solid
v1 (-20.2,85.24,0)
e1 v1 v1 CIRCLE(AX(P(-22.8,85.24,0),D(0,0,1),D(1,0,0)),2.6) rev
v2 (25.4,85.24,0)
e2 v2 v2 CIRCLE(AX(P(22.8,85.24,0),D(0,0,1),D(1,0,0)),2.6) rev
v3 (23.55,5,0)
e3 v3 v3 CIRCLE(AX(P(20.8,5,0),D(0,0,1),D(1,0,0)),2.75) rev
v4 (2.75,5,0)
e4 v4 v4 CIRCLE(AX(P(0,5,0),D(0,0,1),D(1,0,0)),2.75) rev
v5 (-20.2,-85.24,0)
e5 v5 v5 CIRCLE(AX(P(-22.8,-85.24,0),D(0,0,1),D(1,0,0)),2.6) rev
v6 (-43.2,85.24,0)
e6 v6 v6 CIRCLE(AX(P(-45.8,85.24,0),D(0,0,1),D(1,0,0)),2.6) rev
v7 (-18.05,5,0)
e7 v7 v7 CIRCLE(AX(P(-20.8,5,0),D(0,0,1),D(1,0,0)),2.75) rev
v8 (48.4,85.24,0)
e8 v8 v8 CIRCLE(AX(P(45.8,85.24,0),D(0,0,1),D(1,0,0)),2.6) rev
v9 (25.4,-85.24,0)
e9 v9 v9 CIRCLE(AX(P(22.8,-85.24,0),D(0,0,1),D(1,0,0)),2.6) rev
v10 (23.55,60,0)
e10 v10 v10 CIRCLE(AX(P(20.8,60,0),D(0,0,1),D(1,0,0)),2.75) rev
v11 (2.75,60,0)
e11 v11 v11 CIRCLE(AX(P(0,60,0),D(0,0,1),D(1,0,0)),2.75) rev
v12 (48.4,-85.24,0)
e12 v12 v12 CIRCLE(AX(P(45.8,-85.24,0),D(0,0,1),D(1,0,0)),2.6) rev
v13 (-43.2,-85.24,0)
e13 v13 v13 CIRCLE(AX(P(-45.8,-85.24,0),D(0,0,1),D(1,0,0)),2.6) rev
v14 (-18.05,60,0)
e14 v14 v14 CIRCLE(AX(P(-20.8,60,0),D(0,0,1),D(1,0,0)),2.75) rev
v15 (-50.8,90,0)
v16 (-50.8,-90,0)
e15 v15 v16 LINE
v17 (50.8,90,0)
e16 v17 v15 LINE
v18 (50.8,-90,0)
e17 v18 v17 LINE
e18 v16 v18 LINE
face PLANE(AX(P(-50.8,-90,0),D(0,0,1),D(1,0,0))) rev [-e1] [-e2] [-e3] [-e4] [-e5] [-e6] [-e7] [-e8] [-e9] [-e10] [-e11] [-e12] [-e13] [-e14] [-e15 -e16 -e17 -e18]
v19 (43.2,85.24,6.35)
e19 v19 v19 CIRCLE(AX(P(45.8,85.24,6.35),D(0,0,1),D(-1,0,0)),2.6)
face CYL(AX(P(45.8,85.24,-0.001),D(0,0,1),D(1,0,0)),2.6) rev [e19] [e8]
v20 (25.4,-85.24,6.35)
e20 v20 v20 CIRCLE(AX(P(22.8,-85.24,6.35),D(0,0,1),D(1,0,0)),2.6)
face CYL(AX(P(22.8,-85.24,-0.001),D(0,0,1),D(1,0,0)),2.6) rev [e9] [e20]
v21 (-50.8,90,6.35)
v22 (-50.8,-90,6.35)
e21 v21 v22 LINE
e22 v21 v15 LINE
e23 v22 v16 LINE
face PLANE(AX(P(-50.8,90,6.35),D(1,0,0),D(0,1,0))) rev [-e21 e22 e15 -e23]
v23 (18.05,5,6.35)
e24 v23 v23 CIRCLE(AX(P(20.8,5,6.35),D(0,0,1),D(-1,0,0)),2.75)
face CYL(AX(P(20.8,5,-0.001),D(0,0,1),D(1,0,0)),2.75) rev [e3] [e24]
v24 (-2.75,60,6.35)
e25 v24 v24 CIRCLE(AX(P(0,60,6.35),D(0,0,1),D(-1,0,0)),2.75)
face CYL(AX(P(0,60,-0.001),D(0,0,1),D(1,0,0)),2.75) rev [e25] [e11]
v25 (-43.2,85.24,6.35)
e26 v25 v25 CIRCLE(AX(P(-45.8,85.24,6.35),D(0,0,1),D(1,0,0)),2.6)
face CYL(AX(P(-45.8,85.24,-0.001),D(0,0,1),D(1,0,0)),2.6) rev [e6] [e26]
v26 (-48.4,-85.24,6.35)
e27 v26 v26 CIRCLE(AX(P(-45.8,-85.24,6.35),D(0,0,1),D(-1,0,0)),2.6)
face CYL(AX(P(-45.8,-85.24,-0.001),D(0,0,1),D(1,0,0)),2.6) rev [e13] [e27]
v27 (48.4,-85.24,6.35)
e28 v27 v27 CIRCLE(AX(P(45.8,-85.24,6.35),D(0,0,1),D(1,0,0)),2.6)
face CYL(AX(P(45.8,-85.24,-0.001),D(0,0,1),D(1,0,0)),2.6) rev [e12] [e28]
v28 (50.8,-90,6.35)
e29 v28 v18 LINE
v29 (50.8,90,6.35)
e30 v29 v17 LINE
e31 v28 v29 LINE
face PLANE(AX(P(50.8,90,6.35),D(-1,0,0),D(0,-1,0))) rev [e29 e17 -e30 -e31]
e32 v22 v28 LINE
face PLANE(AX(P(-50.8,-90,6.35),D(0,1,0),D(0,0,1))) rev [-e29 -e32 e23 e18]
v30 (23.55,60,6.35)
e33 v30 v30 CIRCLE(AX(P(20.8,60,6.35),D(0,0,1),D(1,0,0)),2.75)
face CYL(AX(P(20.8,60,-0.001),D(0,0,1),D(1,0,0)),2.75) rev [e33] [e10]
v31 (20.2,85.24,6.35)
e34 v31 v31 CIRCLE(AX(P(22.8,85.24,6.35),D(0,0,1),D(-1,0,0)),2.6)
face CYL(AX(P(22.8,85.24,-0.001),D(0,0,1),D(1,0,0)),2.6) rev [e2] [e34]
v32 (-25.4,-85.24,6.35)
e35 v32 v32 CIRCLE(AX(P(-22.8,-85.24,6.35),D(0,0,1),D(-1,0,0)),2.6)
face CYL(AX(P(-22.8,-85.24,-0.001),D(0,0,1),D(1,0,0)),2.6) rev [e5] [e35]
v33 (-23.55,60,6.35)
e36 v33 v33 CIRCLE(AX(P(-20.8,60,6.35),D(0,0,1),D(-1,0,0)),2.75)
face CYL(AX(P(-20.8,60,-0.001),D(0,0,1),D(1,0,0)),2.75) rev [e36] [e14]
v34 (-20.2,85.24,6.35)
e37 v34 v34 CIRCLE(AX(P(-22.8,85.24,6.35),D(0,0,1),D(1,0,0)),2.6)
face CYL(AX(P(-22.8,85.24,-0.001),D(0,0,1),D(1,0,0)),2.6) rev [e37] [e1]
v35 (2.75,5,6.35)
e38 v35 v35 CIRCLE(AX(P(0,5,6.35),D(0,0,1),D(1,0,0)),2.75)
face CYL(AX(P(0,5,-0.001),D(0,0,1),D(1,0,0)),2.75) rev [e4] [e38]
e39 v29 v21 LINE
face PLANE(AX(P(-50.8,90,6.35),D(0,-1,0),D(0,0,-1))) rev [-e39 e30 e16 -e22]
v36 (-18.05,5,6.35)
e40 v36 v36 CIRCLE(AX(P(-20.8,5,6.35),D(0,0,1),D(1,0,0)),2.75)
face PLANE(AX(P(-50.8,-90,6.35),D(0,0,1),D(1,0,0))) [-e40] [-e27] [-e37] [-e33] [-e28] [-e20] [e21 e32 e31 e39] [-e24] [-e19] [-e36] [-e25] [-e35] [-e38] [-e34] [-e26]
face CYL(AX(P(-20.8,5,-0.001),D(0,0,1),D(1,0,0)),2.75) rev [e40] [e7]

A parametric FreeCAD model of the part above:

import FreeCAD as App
import Part
import Sketcher
from FreeCAD import Vector
Q = App.Units.Quantity


def add_polygon(sketch, points):
    """Adds a closed chain of lines whose ends are joined by coincident constraints."""
    first, n = sketch.GeometryCount, len(points)
    for a, b in zip(points, points[1:] + points[:1]):
        sketch.addGeometry(Part.LineSegment(App.Vector(*a, 0), App.Vector(*b, 0)), False)
    for i in range(n):
        sketch.addConstraint(Sketcher.Constraint("Coincident", first + i, 2, first + (i + 1) % n, 1))

doc = App.newDocument("Part")
body = doc.addObject("PartDesign::Body", "Body")

# Sketch on XY plane
sketch1 = doc.addObject("Sketcher::SketchObject", "Sketch")
body.addObject(sketch1)
sketch1.AttachmentSupport = (doc.XY_Plane, [""])
sketch1.MapMode = "FlatFace"
add_polygon(sketch1, [(-50.8, 90), (-50.8, -90), (50.8, -90), (50.8, 90)])  # lines 0-3
sketch1.addConstraint([
    Sketcher.Constraint("Vertical", 0),
    Sketcher.Constraint("Horizontal", 1),
    Sketcher.Constraint("Vertical", 2),
    Sketcher.Constraint("Horizontal", 3),
    Sketcher.Constraint("Symmetric", 0, 2, 2, 2, -1, 1),
    Sketcher.Constraint("DistanceY", 0, 2, 0, 1, Q("180 mm")),
    Sketcher.Constraint("DistanceX", 1, 1, 1, 2, Q("101.6 mm")),
])
pad1 = doc.addObject("PartDesign::Pad", "Pad")
body.addObject(pad1)
pad1.Profile = sketch1
pad1.Length = 6.35

# Sketch on XY plane
sketch2 = doc.addObject("Sketcher::SketchObject", "Sketch001")
body.addObject(sketch2)
sketch2.AttachmentSupport = (doc.XY_Plane, [""])
sketch2.MapMode = "FlatFace"
sketch2.AttachmentOffset = App.Placement(Vector(0, 0, 6.35), App.Rotation())
sketch2.addGeometry(Part.Circle(Vector(-45.8, 85.24, 0), Vector(0, 0, 1), 2.6), False)
sketch2.addConstraint([
    Sketcher.Constraint("Diameter", 0, Q("5.2 mm")),
    Sketcher.Constraint("DistanceX", 0, 3, -1, 1, Q("45.8 mm")),
    Sketcher.Constraint("DistanceY", -1, 1, 0, 3, Q("85.24 mm")),
])
pocket1 = doc.addObject("PartDesign::Pocket", "Pocket")
body.addObject(pocket1)
pocket1.Profile = sketch2
pocket1.Type = "UpToFirst"

# Sketch on XY plane
sketch3 = doc.addObject("Sketcher::SketchObject", "Sketch002")
body.addObject(sketch3)
sketch3.AttachmentSupport = (doc.XY_Plane, [""])
sketch3.MapMode = "FlatFace"
sketch3.AttachmentOffset = App.Placement(Vector(0, 0, 6.35), App.Rotation())
sketch3.addGeometry(Part.Circle(Vector(-22.8, 85.24, 0), Vector(0, 0, 1), 2.6), False)
sketch3.addConstraint([
    Sketcher.Constraint("Diameter", 0, Q("5.2 mm")),
    Sketcher.Constraint("DistanceX", 0, 3, -1, 1, Q("22.8 mm")),
    Sketcher.Constraint("DistanceY", -1, 1, 0, 3, Q("85.24 mm")),
])
pocket2 = doc.addObject("PartDesign::Pocket", "Pocket001")
body.addObject(pocket2)
pocket2.Profile = sketch3
pocket2.Type = "UpToFirst"

# Sketch on XY plane
sketch4 = doc.addObject("Sketcher::SketchObject", "Sketch003")
body.addObject(sketch4)
sketch4.AttachmentSupport = (doc.XY_Plane, [""])
sketch4.MapMode = "FlatFace"
sketch4.AttachmentOffset = App.Placement(Vector(0, 0, 6.35), App.Rotation())
sketch4.addGeometry(Part.Circle(Vector(22.8, 85.24, 0), Vector(0, 0, 1), 2.6), False)
sketch4.addConstraint([
    Sketcher.Constraint("Diameter", 0, Q("5.2 mm")),
    Sketcher.Constraint("DistanceX", -1, 1, 0, 3, Q("22.8 mm")),
    Sketcher.Constraint("DistanceY", -1, 1, 0, 3, Q("85.24 mm")),
])
pocket3 = doc.addObject("PartDesign::Pocket", "Pocket002")
body.addObject(pocket3)
pocket3.Profile = sketch4
pocket3.Type = "UpToFirst"

# Sketch on XY plane
sketch5 = doc.addObject("Sketcher::SketchObject", "Sketch004")
body.addObject(sketch5)
sketch5.AttachmentSupport = (doc.XY_Plane, [""])
sketch5.MapMode = "FlatFace"
sketch5.AttachmentOffset = App.Placement(Vector(0, 0, 6.35), App.Rotation())
sketch5.addGeometry(Part.Circle(Vector(45.8, 85.24, 0), Vector(0, 0, 1), 2.6), False)
sketch5.addConstraint([
    Sketcher.Constraint("Diameter", 0, Q("5.2 mm")),
    Sketcher.Constraint("DistanceX", -1, 1, 0, 3, Q("45.8 mm")),
    Sketcher.Constraint("DistanceY", -1, 1, 0, 3, Q("85.24 mm")),
])
pocket4 = doc.addObject("PartDesign::Pocket", "Pocket003")
body.addObject(pocket4)
pocket4.Profile = sketch5
pocket4.Type = "UpToFirst"

# Sketch on XY plane
sketch6 = doc.addObject("Sketcher::SketchObject", "Sketch005")
body.addObject(sketch6)
sketch6.AttachmentSupport = (doc.XY_Plane, [""])
sketch6.MapMode = "FlatFace"
sketch6.AttachmentOffset = App.Placement(Vector(0, 0, 6.35), App.Rotation())
sketch6.addGeometry(Part.Circle(Vector(45.8, -85.24, 0), Vector(0, 0, 1), 2.6), False)
sketch6.addConstraint([
    Sketcher.Constraint("Diameter", 0, Q("5.2 mm")),
    Sketcher.Constraint("DistanceX", -1, 1, 0, 3, Q("45.8 mm")),
    Sketcher.Constraint("DistanceY", 0, 3, -1, 1, Q("85.24 mm")),
])
pocket5 = doc.addObject("PartDesign::Pocket", "Pocket004")
body.addObject(pocket5)
pocket5.Profile = sketch6
pocket5.Type = "UpToFirst"

# Sketch on XY plane
sketch7 = doc.addObject("Sketcher::SketchObject", "Sketch006")
body.addObject(sketch7)
sketch7.AttachmentSupport = (doc.XY_Plane, [""])
sketch7.MapMode = "FlatFace"
sketch7.AttachmentOffset = App.Placement(Vector(0, 0, 6.35), App.Rotation())
sketch7.addGeometry(Part.Circle(Vector(22.8, -85.24, 0), Vector(0, 0, 1), 2.6), False)
sketch7.addConstraint([
    Sketcher.Constraint("Diameter", 0, Q("5.2 mm")),
    Sketcher.Constraint("DistanceX", -1, 1, 0, 3, Q("22.8 mm")),
    Sketcher.Constraint("DistanceY", 0, 3, -1, 1, Q("85.24 mm")),
])
pocket6 = doc.addObject("PartDesign::Pocket", "Pocket005")
body.addObject(pocket6)
pocket6.Profile = sketch7
pocket6.Type = "UpToFirst"

# Sketch on XY plane
sketch8 = doc.addObject("Sketcher::SketchObject", "Sketch007")
body.addObject(sketch8)
sketch8.AttachmentSupport = (doc.XY_Plane, [""])
sketch8.MapMode = "FlatFace"
sketch8.AttachmentOffset = App.Placement(Vector(0, 0, 6.35), App.Rotation())
sketch8.addGeometry(Part.Circle(Vector(-22.8, -85.24, 0), Vector(0, 0, 1), 2.6), False)
sketch8.addConstraint([
    Sketcher.Constraint("Diameter", 0, Q("5.2 mm")),
    Sketcher.Constraint("DistanceX", 0, 3, -1, 1, Q("22.8 mm")),
    Sketcher.Constraint("DistanceY", 0, 3, -1, 1, Q("85.24 mm")),
])
pocket7 = doc.addObject("PartDesign::Pocket", "Pocket006")
body.addObject(pocket7)
pocket7.Profile = sketch8
pocket7.Type = "UpToFirst"

# Sketch on XY plane
sketch9 = doc.addObject("Sketcher::SketchObject", "Sketch008")
body.addObject(sketch9)
sketch9.AttachmentSupport = (doc.XY_Plane, [""])
sketch9.MapMode = "FlatFace"
sketch9.AttachmentOffset = App.Placement(Vector(0, 0, 6.35), App.Rotation())
sketch9.addGeometry(Part.Circle(Vector(-45.8, -85.24, 0), Vector(0, 0, 1), 2.6), False)
sketch9.addConstraint([
    Sketcher.Constraint("Diameter", 0, Q("5.2 mm")),
    Sketcher.Constraint("DistanceX", 0, 3, -1, 1, Q("45.8 mm")),
    Sketcher.Constraint("DistanceY", 0, 3, -1, 1, Q("85.24 mm")),
])
pocket8 = doc.addObject("PartDesign::Pocket", "Pocket007")
body.addObject(pocket8)
pocket8.Profile = sketch9
pocket8.Type = "UpToFirst"

# Sketch on XY plane
sketch10 = doc.addObject("Sketcher::SketchObject", "Sketch009")
body.addObject(sketch10)
sketch10.AttachmentSupport = (doc.XY_Plane, [""])
sketch10.MapMode = "FlatFace"
sketch10.AttachmentOffset = App.Placement(Vector(0, 0, 6.35), App.Rotation())
sketch10.addGeometry(Part.Circle(Vector(-20.8, 5, 0), Vector(0, 0, 1), 2.75), False)
sketch10.addConstraint([
    Sketcher.Constraint("Diameter", 0, Q("5.5 mm")),
    Sketcher.Constraint("DistanceY", -1, 1, 0, 3, Q("5 mm")),
    Sketcher.Constraint("DistanceX", 0, 3, -1, 1, Q("20.8 mm")),
])
pocket9 = doc.addObject("PartDesign::Pocket", "Pocket008")
body.addObject(pocket9)
pocket9.Profile = sketch10
pocket9.Type = "UpToFirst"

# Sketch on XY plane
sketch11 = doc.addObject("Sketcher::SketchObject", "Sketch010")
body.addObject(sketch11)
sketch11.AttachmentSupport = (doc.XY_Plane, [""])
sketch11.MapMode = "FlatFace"
sketch11.AttachmentOffset = App.Placement(Vector(0, 0, 6.35), App.Rotation())
sketch11.addGeometry(Part.Circle(Vector(0, 5, 0), Vector(0, 0, 1), 2.75), False)
sketch11.addConstraint([
    Sketcher.Constraint("PointOnObject", 0, 3, -2),
    Sketcher.Constraint("Diameter", 0, Q("5.5 mm")),
    Sketcher.Constraint("DistanceY", -1, 1, 0, 3, Q("5 mm")),
])
pocket10 = doc.addObject("PartDesign::Pocket", "Pocket009")
body.addObject(pocket10)
pocket10.Profile = sketch11
pocket10.Type = "UpToFirst"

# Sketch on XY plane
sketch12 = doc.addObject("Sketcher::SketchObject", "Sketch011")
body.addObject(sketch12)
sketch12.AttachmentSupport = (doc.XY_Plane, [""])
sketch12.MapMode = "FlatFace"
sketch12.AttachmentOffset = App.Placement(Vector(0, 0, 6.35), App.Rotation())
sketch12.addGeometry(Part.Circle(Vector(20.8, 5, 0), Vector(0, 0, 1), 2.75), False)
sketch12.addConstraint([
    Sketcher.Constraint("Diameter", 0, Q("5.5 mm")),
    Sketcher.Constraint("DistanceY", -1, 1, 0, 3, Q("5 mm")),
    Sketcher.Constraint("DistanceX", -1, 1, 0, 3, Q("20.8 mm")),
])
pocket11 = doc.addObject("PartDesign::Pocket", "Pocket010")
body.addObject(pocket11)
pocket11.Profile = sketch12
pocket11.Type = "UpToFirst"

# Sketch on XY plane
sketch13 = doc.addObject("Sketcher::SketchObject", "Sketch012")
body.addObject(sketch13)
sketch13.AttachmentSupport = (doc.XY_Plane, [""])
sketch13.MapMode = "FlatFace"
sketch13.AttachmentOffset = App.Placement(Vector(0, 0, 6.35), App.Rotation())
sketch13.addGeometry(Part.Circle(Vector(20.8, 60, 0), Vector(0, 0, 1), 2.75), False)
sketch13.addConstraint([
    Sketcher.Constraint("Diameter", 0, Q("5.5 mm")),
    Sketcher.Constraint("DistanceY", -1, 1, 0, 3, Q("60 mm")),
    Sketcher.Constraint("DistanceX", -1, 1, 0, 3, Q("20.8 mm")),
])
pocket12 = doc.addObject("PartDesign::Pocket", "Pocket011")
body.addObject(pocket12)
pocket12.Profile = sketch13
pocket12.Type = "UpToFirst"

# Sketch on XY plane
sketch14 = doc.addObject("Sketcher::SketchObject", "Sketch013")
body.addObject(sketch14)
sketch14.AttachmentSupport = (doc.XY_Plane, [""])
sketch14.MapMode = "FlatFace"
sketch14.AttachmentOffset = App.Placement(Vector(0, 0, 6.35), App.Rotation())
sketch14.addGeometry(Part.Circle(Vector(0, 60, 0), Vector(0, 0, 1), 2.75), False)
sketch14.addConstraint([
    Sketcher.Constraint("PointOnObject", 0, 3, -2),
    Sketcher.Constraint("Diameter", 0, Q("5.5 mm")),
    Sketcher.Constraint("DistanceY", -1, 1, 0, 3, Q("60 mm")),
])
pocket13 = doc.addObject("PartDesign::Pocket", "Pocket012")
body.addObject(pocket13)
pocket13.Profile = sketch14
pocket13.Type = "UpToFirst"

# Sketch on XY plane
sketch15 = doc.addObject("Sketcher::SketchObject", "Sketch014")
body.addObject(sketch15)
sketch15.AttachmentSupport = (doc.XY_Plane, [""])
sketch15.MapMode = "FlatFace"
sketch15.AttachmentOffset = App.Placement(Vector(0, 0, 6.35), App.Rotation())
sketch15.addGeometry(Part.Circle(Vector(-20.8, 60, 0), Vector(0, 0, 1), 2.75), False)
sketch15.addConstraint([
    Sketcher.Constraint("Diameter", 0, Q("5.5 mm")),
    Sketcher.Constraint("DistanceY", -1, 1, 0, 3, Q("60 mm")),
    Sketcher.Constraint("DistanceX", 0, 3, -1, 1, Q("20.8 mm")),
])
pocket14 = doc.addObject("PartDesign::Pocket", "Pocket013")
body.addObject(pocket14)
pocket14.Profile = sketch15
pocket14.Type = "UpToFirst"

doc.recompute()
